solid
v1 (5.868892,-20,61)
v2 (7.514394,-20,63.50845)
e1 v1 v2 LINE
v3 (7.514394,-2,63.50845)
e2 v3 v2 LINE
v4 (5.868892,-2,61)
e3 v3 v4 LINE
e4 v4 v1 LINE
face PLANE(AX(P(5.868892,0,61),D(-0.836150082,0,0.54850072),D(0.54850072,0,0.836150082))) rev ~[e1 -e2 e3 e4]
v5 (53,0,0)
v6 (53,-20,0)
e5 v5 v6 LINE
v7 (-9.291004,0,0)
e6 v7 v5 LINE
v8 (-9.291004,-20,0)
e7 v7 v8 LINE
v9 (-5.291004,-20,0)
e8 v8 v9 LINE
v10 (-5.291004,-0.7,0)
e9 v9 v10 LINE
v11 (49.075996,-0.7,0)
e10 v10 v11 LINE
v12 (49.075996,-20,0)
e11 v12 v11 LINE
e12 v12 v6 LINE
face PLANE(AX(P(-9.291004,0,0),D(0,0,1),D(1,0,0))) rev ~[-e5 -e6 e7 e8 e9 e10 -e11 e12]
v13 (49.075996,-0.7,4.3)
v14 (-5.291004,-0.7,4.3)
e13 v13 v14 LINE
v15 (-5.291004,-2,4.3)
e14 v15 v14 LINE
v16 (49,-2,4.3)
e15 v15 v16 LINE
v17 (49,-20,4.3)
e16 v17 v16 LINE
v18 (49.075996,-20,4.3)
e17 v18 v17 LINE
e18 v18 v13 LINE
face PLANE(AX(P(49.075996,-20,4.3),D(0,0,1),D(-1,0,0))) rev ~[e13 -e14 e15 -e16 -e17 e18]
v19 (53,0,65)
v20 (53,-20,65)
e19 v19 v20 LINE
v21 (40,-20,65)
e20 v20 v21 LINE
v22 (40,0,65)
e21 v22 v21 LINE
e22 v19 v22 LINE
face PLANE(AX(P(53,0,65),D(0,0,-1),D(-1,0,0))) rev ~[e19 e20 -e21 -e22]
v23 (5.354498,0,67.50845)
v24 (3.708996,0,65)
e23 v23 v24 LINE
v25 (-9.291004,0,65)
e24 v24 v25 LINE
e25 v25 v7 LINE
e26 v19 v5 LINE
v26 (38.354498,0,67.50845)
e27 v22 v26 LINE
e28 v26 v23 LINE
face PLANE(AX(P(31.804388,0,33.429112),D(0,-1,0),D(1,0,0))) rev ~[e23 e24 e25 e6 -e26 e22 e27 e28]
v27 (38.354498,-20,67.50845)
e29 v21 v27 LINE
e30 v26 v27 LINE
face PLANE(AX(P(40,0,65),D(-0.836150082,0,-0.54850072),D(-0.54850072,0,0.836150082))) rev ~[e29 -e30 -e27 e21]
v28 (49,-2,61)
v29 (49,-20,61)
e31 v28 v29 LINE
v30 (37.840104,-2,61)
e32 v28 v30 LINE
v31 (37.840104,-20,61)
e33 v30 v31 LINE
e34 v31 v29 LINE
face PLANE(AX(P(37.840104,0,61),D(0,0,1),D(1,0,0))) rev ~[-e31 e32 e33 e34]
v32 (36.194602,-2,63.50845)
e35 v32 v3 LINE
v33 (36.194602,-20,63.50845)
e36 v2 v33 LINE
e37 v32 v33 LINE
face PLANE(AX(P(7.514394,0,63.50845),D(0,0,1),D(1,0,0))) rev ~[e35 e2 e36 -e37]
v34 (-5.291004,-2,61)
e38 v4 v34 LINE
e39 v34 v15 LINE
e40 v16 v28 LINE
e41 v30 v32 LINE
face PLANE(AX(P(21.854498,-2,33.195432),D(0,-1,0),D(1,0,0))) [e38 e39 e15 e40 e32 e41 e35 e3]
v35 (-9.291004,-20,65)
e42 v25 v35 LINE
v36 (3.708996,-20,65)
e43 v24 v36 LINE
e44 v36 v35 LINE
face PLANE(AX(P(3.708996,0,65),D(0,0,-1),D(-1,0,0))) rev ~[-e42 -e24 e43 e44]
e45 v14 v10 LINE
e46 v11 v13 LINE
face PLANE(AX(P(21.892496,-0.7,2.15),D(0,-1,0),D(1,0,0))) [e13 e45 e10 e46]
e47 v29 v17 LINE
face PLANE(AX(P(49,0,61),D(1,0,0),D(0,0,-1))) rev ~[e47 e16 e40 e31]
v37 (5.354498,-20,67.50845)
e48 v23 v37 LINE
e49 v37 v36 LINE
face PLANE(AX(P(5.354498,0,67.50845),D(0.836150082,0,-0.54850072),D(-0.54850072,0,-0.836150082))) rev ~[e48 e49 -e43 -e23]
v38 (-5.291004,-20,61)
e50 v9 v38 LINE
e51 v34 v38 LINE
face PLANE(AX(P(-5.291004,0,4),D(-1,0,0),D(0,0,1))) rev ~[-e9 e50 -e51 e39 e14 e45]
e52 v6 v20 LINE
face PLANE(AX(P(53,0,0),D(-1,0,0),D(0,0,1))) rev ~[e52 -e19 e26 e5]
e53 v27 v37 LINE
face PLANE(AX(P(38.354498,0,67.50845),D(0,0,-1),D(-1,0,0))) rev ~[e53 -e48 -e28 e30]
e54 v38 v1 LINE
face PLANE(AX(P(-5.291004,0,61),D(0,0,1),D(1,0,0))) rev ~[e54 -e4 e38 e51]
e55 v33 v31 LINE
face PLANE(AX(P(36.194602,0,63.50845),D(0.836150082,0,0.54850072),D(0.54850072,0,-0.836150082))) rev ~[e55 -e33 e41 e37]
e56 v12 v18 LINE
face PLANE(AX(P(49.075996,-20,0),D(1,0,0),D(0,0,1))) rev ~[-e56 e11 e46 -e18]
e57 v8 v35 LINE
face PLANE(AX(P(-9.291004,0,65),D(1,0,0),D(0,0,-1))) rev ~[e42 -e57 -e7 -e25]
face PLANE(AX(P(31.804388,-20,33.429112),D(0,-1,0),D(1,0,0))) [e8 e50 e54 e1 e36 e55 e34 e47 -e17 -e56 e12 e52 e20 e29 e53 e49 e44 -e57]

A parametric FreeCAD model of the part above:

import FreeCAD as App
import Part
import Sketcher

V = App.Vector
Q = App.Units.Quantity

doc = App.newDocument("Part")
params = doc.addObject("Spreadsheet::Sheet", "Params")
for row, (alias, value) in enumerate([
    ("sketch1_height", "57 mm"),
    ("sketch1_length", "3 mm"),
    ("pad1_length", "2 mm"),
    ("sketch2_width", "13 mm"),
    ("sketch2_width2", "33 mm"),
    ("sketch2_height", "65 mm"),
    ("sketch2_height2", "57 mm"),
    ("sketch2_length", "3 mm"),
    ("pad2_length", "20 mm"),
    ("sketch3_height", "20 mm"),
    ("pad3_length", "4.3 mm"),
    ("sketch4_height", "20 mm"),
    ("pad4_length", "4 mm"),
    ("sketch5_height", "4.3 mm"),
    ("pocket1_length", "19.3 mm"),
], start=1):
    params.set(f"A{row}", alias)
    params.set(f"B{row}", "=" + value)
    params.setAlias(f"B{row}", alias)

body = doc.addObject("PartDesign::Body", "Body")

sketch1 = body.newObject("Sketcher::SketchObject", "Sketch")
sketch1.AttachmentSupport = (doc.getObject("XZ_Plane"), [""])
sketch1.MapMode = "FlatFace"
sketch1.addGeometry(Part.LineSegment(V(-5.291004, 61, 0), V(-5.291004, 4, 0)), False)
sketch1.addGeometry(Part.LineSegment(V(-5.291004, 4, 0), V(49, 4, 0)), False)
sketch1.addGeometry(Part.LineSegment(V(49, 4, 0), V(49, 61, 0)), False)
sketch1.addGeometry(Part.LineSegment(V(49, 61, 0), V(37.840104, 61, 0)), False)
sketch1.addGeometry(Part.LineSegment(V(37.840104, 61, 0), V(36.194602, 63.50845, 0)), False)
sketch1.addGeometry(Part.LineSegment(V(36.194602, 63.50845, 0), V(7.514394, 63.50845, 0)), False)
sketch1.addGeometry(Part.LineSegment(V(7.514394, 63.50845, 0), V(5.868892, 61, 0)), False)
sketch1.addGeometry(Part.LineSegment(V(5.868892, 61, 0), V(-5.291004, 61, 0)), False)
sketch1.addConstraint(Sketcher.Constraint("Coincident", 0, 2, 1, 1))
sketch1.addConstraint(Sketcher.Constraint("Coincident", 1, 2, 2, 1))
sketch1.addConstraint(Sketcher.Constraint("Coincident", 2, 2, 3, 1))
sketch1.addConstraint(Sketcher.Constraint("Coincident", 3, 2, 4, 1))
sketch1.addConstraint(Sketcher.Constraint("Coincident", 4, 2, 5, 1))
sketch1.addConstraint(Sketcher.Constraint("Coincident", 5, 2, 6, 1))
sketch1.addConstraint(Sketcher.Constraint("Coincident", 6, 2, 7, 1))
sketch1.addConstraint(Sketcher.Constraint("Coincident", 7, 2, 0, 1))
sketch1.addConstraint(Sketcher.Constraint("Vertical", 0))
sketch1.addConstraint(Sketcher.Constraint("Horizontal", 1))
sketch1.addConstraint(Sketcher.Constraint("Vertical", 2))
sketch1.addConstraint(Sketcher.Constraint("Horizontal", 3))
sketch1.addConstraint(Sketcher.Constraint("Horizontal", 5))
sketch1.addConstraint(Sketcher.Constraint("Horizontal", 7))
sketch1.addConstraint(Sketcher.Constraint("Horizontal", 3, 2, 6, 2))
sketch1.addConstraint(Sketcher.Constraint("Equal", 3, 7))
sketch1.addConstraint(Sketcher.Constraint("Equal", 4, 6))
sketch1.addConstraint(Sketcher.Constraint("DistanceY", 0, 2, 0, 1, Q("57 mm")))
sketch1.addConstraint(Sketcher.Constraint("Distance", 4, Q("3 mm")))
sketch1.addConstraint(Sketcher.Constraint("DistanceY", -1, 1, 0, 2, Q("4 mm")))
sketch1.addConstraint(Sketcher.Constraint("DistanceX", -1, 1, 1, 2, Q("49 mm")))
sketch1.addConstraint(Sketcher.Constraint("DistanceX", 5, 2, 5, 1, Q("28.680208 mm")))
sketch1.addConstraint(Sketcher.Constraint("DistanceX", 4, 2, 3, 2, Q("1.645502 mm")))
sketch1.addConstraint(Sketcher.Constraint("DistanceX", 1, 1, 1, 2, Q("54.291004 mm")))
sketch1.setExpression("Constraints[17]", "Params.sketch1_height")
sketch1.setExpression("Constraints[18]", "Params.sketch1_length")
pad1 = body.newObject("PartDesign::Pad", "Pad")
pad1.Profile = sketch1
pad1.setExpression("Length", "Params.pad1_length")

sketch2 = body.newObject("Sketcher::SketchObject", "Sketch001")
sketch2.AttachmentSupport = (doc.getObject("XZ_Plane"), [""])
sketch2.MapMode = "FlatFace"
sketch2.addGeometry(Part.LineSegment(V(3.708996, 65, 0), V(-9.291004, 65, 0)), False)
sketch2.addGeometry(Part.LineSegment(V(-9.291004, 65, 0), V(-9.291004, 0, 0)), False)
sketch2.addGeometry(Part.LineSegment(V(-9.291004, 0, 0), V(53, 0, 0)), False)
sketch2.addGeometry(Part.LineSegment(V(53, 0, 0), V(53, 65, 0)), False)
sketch2.addGeometry(Part.LineSegment(V(53, 65, 0), V(40, 65, 0)), False)
sketch2.addGeometry(Part.LineSegment(V(40, 65, 0), V(38.354498, 67.50845, 0)), False)
sketch2.addGeometry(Part.LineSegment(V(38.354498, 67.50845, 0), V(5.354498, 67.50845, 0)), False)
sketch2.addGeometry(Part.LineSegment(V(5.354498, 67.50845, 0), V(3.708996, 65, 0)), False)
sketch2.addGeometry(Part.LineSegment(V(-5.291004, 4, 0), V(-5.291004, 61, 0)), False)
sketch2.addGeometry(Part.LineSegment(V(-5.291004, 61, 0), V(5.868892, 61, 0)), False)
sketch2.addGeometry(Part.LineSegment(V(5.868892, 61, 0), V(7.514394, 63.50845, 0)), False)
sketch2.addGeometry(Part.LineSegment(V(7.514394, 63.50845, 0), V(36.194602, 63.50845, 0)), False)
sketch2.addGeometry(Part.LineSegment(V(36.194602, 63.50845, 0), V(37.840104, 61, 0)), False)
sketch2.addGeometry(Part.LineSegment(V(37.840104, 61, 0), V(49, 61, 0)), False)
sketch2.addGeometry(Part.LineSegment(V(49, 61, 0), V(49, 4, 0)), False)
sketch2.addGeometry(Part.LineSegment(V(49, 4, 0), V(-5.291004, 4, 0)), False)
sketch2.addConstraint(Sketcher.Constraint("Coincident", 0, 2, 1, 1))
sketch2.addConstraint(Sketcher.Constraint("Coincident", 1, 2, 2, 1))
sketch2.addConstraint(Sketcher.Constraint("Coincident", 2, 2, 3, 1))
sketch2.addConstraint(Sketcher.Constraint("Coincident", 3, 2, 4, 1))
sketch2.addConstraint(Sketcher.Constraint("Coincident", 4, 2, 5, 1))
sketch2.addConstraint(Sketcher.Constraint("Coincident", 5, 2, 6, 1))
sketch2.addConstraint(Sketcher.Constraint("Coincident", 6, 2, 7, 1))
sketch2.addConstraint(Sketcher.Constraint("Coincident", 7, 2, 0, 1))
sketch2.addConstraint(Sketcher.Constraint("Coincident", 8, 2, 9, 1))
sketch2.addConstraint(Sketcher.Constraint("Coincident", 9, 2, 10, 1))
sketch2.addConstraint(Sketcher.Constraint("Coincident", 10, 2, 11, 1))
sketch2.addConstraint(Sketcher.Constraint("Coincident", 11, 2, 12, 1))
sketch2.addConstraint(Sketcher.Constraint("Coincident", 12, 2, 13, 1))
sketch2.addConstraint(Sketcher.Constraint("Coincident", 13, 2, 14, 1))
sketch2.addConstraint(Sketcher.Constraint("Coincident", 14, 2, 15, 1))
sketch2.addConstraint(Sketcher.Constraint("Coincident", 15, 2, 8, 1))
sketch2.addConstraint(Sketcher.Constraint("Horizontal", 0))
sketch2.addConstraint(Sketcher.Constraint("Vertical", 1))
sketch2.addConstraint(Sketcher.Constraint("Horizontal", 2))
sketch2.addConstraint(Sketcher.Constraint("Vertical", 3))
sketch2.addConstraint(Sketcher.Constraint("Horizontal", 4))
sketch2.addConstraint(Sketcher.Constraint("Horizontal", 6))
sketch2.addConstraint(Sketcher.Constraint("Vertical", 8))
sketch2.addConstraint(Sketcher.Constraint("Horizontal", 9))
sketch2.addConstraint(Sketcher.Constraint("Horizontal", 11))
sketch2.addConstraint(Sketcher.Constraint("Horizontal", 13))
sketch2.addConstraint(Sketcher.Constraint("Vertical", 14))
sketch2.addConstraint(Sketcher.Constraint("Horizontal", 15))
sketch2.addConstraint(Sketcher.Constraint("PointOnObject", 1, 2, -1))
sketch2.addConstraint(Sketcher.Constraint("Parallel", 7, 10))
sketch2.addConstraint(Sketcher.Constraint("Parallel", 5, 12))
sketch2.addConstraint(Sketcher.Constraint("Horizontal", 0, 2, 3, 2))
sketch2.addConstraint(Sketcher.Constraint("Horizontal", 9, 2, 12, 2))
sketch2.addConstraint(Sketcher.Constraint("Equal", 0, 4))
sketch2.addConstraint(Sketcher.Constraint("Equal", 9, 13))
sketch2.addConstraint(Sketcher.Constraint("Equal", 5, 7))
sketch2.addConstraint(Sketcher.Constraint("Equal", 7, 10))
sketch2.addConstraint(Sketcher.Constraint("DistanceX", 0, 2, 0, 1, Q("13 mm")))
sketch2.addConstraint(Sketcher.Constraint("DistanceX", 6, 2, 6, 1, Q("33 mm")))
sketch2.addConstraint(Sketcher.Constraint("DistanceY", 1, 2, 1, 1, Q("65 mm")))
sketch2.addConstraint(Sketcher.Constraint("DistanceY", 8, 1, 8, 2, Q("57 mm")))
sketch2.addConstraint(Sketcher.Constraint("Distance", 5, Q("3 mm")))
sketch2.addConstraint(Sketcher.Constraint("DistanceX", -1, 1, 2, 2, Q("53 mm")))
sketch2.addConstraint(Sketcher.Constraint("DistanceY", -1, 1, 8, 2, Q("61 mm")))
sketch2.addConstraint(Sketcher.Constraint("DistanceX", -1, 1, 13, 2, Q("49 mm")))
sketch2.addConstraint(Sketcher.Constraint("DistanceX", 0, 2, 8, 2, Q("4 mm")))
sketch2.addConstraint(Sketcher.Constraint("DistanceX", 11, 1, 11, 2, Q("28.680208 mm")))
sketch2.addConstraint(Sketcher.Constraint("DistanceX", -1, 1, 6, 2, Q("5.354498 mm")))
sketch2.setExpression("Constraints[37]", "Params.sketch2_width")
sketch2.setExpression("Constraints[38]", "Params.sketch2_width2")
sketch2.setExpression("Constraints[39]", "Params.sketch2_height")
sketch2.setExpression("Constraints[40]", "Params.sketch2_height2")
sketch2.setExpression("Constraints[41]", "Params.sketch2_length")
pad2 = body.newObject("PartDesign::Pad", "Pad001")
pad2.Profile = sketch2
pad2.setExpression("Length", "Params.pad2_length")

sketch3 = body.newObject("Sketcher::SketchObject", "Sketch002")
sketch3.AttachmentSupport = (doc.getObject("XY_Plane"), [""])
sketch3.MapMode = "FlatFace"
sketch3.addGeometry(Part.LineSegment(V(-9.291004, -20, 0), V(-9.291004, 0, 0)), False)
sketch3.addGeometry(Part.LineSegment(V(-9.291004, 0, 0), V(53, 0, 0)), False)
sketch3.addGeometry(Part.LineSegment(V(53, 0, 0), V(53, -20, 0)), False)
sketch3.addGeometry(Part.LineSegment(V(53, -20, 0), V(-9.291004, -20, 0)), False)
sketch3.addConstraint(Sketcher.Constraint("Coincident", 0, 2, 1, 1))
sketch3.addConstraint(Sketcher.Constraint("Coincident", 1, 2, 2, 1))
sketch3.addConstraint(Sketcher.Constraint("Coincident", 2, 2, 3, 1))
sketch3.addConstraint(Sketcher.Constraint("Coincident", 3, 2, 0, 1))
sketch3.addConstraint(Sketcher.Constraint("Vertical", 0))
sketch3.addConstraint(Sketcher.Constraint("Horizontal", 1))
sketch3.addConstraint(Sketcher.Constraint("Vertical", 2))
sketch3.addConstraint(Sketcher.Constraint("Horizontal", 3))
sketch3.addConstraint(Sketcher.Constraint("PointOnObject", 0, 2, -1))
sketch3.addConstraint(Sketcher.Constraint("DistanceY", 0, 1, 0, 2, Q("20 mm")))
sketch3.addConstraint(Sketcher.Constraint("DistanceX", -1, 1, 1, 2, Q("53 mm")))
sketch3.addConstraint(Sketcher.Constraint("DistanceX", 1, 1, 1, 2, Q("62.291004 mm")))
sketch3.setExpression("Constraints[9]", "Params.sketch3_height")
pad3 = body.newObject("PartDesign::Pad", "Pad002")
pad3.Profile = sketch3
pad3.setExpression("Length", "Params.pad3_length")

sketch4 = body.newObject("Sketcher::SketchObject", "Sketch003")
sketch4.AttachmentSupport = (doc.getObject("XY_Plane"), [""])
sketch4.MapMode = "FlatFace"
sketch4.addGeometry(Part.LineSegment(V(-9.291004, -20, 0), V(-9.291004, 0, 0)), False)
sketch4.addGeometry(Part.LineSegment(V(-9.291004, 0, 0), V(53, 0, 0)), False)
sketch4.addGeometry(Part.LineSegment(V(53, 0, 0), V(53, -20, 0)), False)
sketch4.addGeometry(Part.LineSegment(V(53, -20, 0), V(-9.291004, -20, 0)), False)
sketch4.addConstraint(Sketcher.Constraint("Coincident", 0, 2, 1, 1))
sketch4.addConstraint(Sketcher.Constraint("Coincident", 1, 2, 2, 1))
sketch4.addConstraint(Sketcher.Constraint("Coincident", 2, 2, 3, 1))
sketch4.addConstraint(Sketcher.Constraint("Coincident", 3, 2, 0, 1))
sketch4.addConstraint(Sketcher.Constraint("Vertical", 0))
sketch4.addConstraint(Sketcher.Constraint("Horizontal", 1))
sketch4.addConstraint(Sketcher.Constraint("Vertical", 2))
sketch4.addConstraint(Sketcher.Constraint("Horizontal", 3))
sketch4.addConstraint(Sketcher.Constraint("PointOnObject", 0, 2, -1))
sketch4.addConstraint(Sketcher.Constraint("DistanceY", 0, 1, 0, 2, Q("20 mm")))
sketch4.addConstraint(Sketcher.Constraint("DistanceX", -1, 1, 1, 2, Q("53 mm")))
sketch4.addConstraint(Sketcher.Constraint("DistanceX", 1, 1, 1, 2, Q("62.291004 mm")))
sketch4.setExpression("Constraints[9]", "Params.sketch4_height")
pad4 = body.newObject("PartDesign::Pad", "Pad003")
pad4.Profile = sketch4
pad4.setExpression("Length", "Params.pad4_length")

sketch5 = body.newObject("Sketcher::SketchObject", "Sketch004")
sketch5.AttachmentSupport = (doc.getObject("XZ_Plane"), [""])
sketch5.MapMode = "FlatFace"
sketch5.AttachmentOffset = App.Placement(V(0, 0, 20), App.Rotation())
sketch5.addGeometry(Part.LineSegment(V(-5.291004, 4.3, 0), V(-5.291004, 0, 0)), False)
sketch5.addGeometry(Part.LineSegment(V(-5.291004, 0, 0), V(49.075996, 0, 0)), False)
sketch5.addGeometry(Part.LineSegment(V(49.075996, 0, 0), V(49.075996, 4.3, 0)), False)
sketch5.addGeometry(Part.LineSegment(V(49.075996, 4.3, 0), V(-5.291004, 4.3, 0)), False)
sketch5.addConstraint(Sketcher.Constraint("Coincident", 0, 2, 1, 1))
sketch5.addConstraint(Sketcher.Constraint("Coincident", 1, 2, 2, 1))
sketch5.addConstraint(Sketcher.Constraint("Coincident", 2, 2, 3, 1))
sketch5.addConstraint(Sketcher.Constraint("Coincident", 3, 2, 0, 1))
sketch5.addConstraint(Sketcher.Constraint("Vertical", 0))
sketch5.addConstraint(Sketcher.Constraint("Horizontal", 1))
sketch5.addConstraint(Sketcher.Constraint("Vertical", 2))
sketch5.addConstraint(Sketcher.Constraint("Horizontal", 3))
sketch5.addConstraint(Sketcher.Constraint("PointOnObject", 0, 2, -1))
sketch5.addConstraint(Sketcher.Constraint("DistanceY", 0, 2, 0, 1, Q("4.3 mm")))
sketch5.addConstraint(Sketcher.Constraint("DistanceX", 1, 1, 1, 2, Q("54.367 mm")))
sketch5.addConstraint(Sketcher.Constraint("DistanceX", 0, 2, -1, 1, Q("5.291004 mm")))
sketch5.setExpression("Constraints[9]", "Params.sketch5_height")
pocket1 = body.newObject("PartDesign::Pocket", "Pocket")
pocket1.Profile = sketch5
pocket1.setExpression("Length", "Params.pocket1_length")

doc.recompute()
